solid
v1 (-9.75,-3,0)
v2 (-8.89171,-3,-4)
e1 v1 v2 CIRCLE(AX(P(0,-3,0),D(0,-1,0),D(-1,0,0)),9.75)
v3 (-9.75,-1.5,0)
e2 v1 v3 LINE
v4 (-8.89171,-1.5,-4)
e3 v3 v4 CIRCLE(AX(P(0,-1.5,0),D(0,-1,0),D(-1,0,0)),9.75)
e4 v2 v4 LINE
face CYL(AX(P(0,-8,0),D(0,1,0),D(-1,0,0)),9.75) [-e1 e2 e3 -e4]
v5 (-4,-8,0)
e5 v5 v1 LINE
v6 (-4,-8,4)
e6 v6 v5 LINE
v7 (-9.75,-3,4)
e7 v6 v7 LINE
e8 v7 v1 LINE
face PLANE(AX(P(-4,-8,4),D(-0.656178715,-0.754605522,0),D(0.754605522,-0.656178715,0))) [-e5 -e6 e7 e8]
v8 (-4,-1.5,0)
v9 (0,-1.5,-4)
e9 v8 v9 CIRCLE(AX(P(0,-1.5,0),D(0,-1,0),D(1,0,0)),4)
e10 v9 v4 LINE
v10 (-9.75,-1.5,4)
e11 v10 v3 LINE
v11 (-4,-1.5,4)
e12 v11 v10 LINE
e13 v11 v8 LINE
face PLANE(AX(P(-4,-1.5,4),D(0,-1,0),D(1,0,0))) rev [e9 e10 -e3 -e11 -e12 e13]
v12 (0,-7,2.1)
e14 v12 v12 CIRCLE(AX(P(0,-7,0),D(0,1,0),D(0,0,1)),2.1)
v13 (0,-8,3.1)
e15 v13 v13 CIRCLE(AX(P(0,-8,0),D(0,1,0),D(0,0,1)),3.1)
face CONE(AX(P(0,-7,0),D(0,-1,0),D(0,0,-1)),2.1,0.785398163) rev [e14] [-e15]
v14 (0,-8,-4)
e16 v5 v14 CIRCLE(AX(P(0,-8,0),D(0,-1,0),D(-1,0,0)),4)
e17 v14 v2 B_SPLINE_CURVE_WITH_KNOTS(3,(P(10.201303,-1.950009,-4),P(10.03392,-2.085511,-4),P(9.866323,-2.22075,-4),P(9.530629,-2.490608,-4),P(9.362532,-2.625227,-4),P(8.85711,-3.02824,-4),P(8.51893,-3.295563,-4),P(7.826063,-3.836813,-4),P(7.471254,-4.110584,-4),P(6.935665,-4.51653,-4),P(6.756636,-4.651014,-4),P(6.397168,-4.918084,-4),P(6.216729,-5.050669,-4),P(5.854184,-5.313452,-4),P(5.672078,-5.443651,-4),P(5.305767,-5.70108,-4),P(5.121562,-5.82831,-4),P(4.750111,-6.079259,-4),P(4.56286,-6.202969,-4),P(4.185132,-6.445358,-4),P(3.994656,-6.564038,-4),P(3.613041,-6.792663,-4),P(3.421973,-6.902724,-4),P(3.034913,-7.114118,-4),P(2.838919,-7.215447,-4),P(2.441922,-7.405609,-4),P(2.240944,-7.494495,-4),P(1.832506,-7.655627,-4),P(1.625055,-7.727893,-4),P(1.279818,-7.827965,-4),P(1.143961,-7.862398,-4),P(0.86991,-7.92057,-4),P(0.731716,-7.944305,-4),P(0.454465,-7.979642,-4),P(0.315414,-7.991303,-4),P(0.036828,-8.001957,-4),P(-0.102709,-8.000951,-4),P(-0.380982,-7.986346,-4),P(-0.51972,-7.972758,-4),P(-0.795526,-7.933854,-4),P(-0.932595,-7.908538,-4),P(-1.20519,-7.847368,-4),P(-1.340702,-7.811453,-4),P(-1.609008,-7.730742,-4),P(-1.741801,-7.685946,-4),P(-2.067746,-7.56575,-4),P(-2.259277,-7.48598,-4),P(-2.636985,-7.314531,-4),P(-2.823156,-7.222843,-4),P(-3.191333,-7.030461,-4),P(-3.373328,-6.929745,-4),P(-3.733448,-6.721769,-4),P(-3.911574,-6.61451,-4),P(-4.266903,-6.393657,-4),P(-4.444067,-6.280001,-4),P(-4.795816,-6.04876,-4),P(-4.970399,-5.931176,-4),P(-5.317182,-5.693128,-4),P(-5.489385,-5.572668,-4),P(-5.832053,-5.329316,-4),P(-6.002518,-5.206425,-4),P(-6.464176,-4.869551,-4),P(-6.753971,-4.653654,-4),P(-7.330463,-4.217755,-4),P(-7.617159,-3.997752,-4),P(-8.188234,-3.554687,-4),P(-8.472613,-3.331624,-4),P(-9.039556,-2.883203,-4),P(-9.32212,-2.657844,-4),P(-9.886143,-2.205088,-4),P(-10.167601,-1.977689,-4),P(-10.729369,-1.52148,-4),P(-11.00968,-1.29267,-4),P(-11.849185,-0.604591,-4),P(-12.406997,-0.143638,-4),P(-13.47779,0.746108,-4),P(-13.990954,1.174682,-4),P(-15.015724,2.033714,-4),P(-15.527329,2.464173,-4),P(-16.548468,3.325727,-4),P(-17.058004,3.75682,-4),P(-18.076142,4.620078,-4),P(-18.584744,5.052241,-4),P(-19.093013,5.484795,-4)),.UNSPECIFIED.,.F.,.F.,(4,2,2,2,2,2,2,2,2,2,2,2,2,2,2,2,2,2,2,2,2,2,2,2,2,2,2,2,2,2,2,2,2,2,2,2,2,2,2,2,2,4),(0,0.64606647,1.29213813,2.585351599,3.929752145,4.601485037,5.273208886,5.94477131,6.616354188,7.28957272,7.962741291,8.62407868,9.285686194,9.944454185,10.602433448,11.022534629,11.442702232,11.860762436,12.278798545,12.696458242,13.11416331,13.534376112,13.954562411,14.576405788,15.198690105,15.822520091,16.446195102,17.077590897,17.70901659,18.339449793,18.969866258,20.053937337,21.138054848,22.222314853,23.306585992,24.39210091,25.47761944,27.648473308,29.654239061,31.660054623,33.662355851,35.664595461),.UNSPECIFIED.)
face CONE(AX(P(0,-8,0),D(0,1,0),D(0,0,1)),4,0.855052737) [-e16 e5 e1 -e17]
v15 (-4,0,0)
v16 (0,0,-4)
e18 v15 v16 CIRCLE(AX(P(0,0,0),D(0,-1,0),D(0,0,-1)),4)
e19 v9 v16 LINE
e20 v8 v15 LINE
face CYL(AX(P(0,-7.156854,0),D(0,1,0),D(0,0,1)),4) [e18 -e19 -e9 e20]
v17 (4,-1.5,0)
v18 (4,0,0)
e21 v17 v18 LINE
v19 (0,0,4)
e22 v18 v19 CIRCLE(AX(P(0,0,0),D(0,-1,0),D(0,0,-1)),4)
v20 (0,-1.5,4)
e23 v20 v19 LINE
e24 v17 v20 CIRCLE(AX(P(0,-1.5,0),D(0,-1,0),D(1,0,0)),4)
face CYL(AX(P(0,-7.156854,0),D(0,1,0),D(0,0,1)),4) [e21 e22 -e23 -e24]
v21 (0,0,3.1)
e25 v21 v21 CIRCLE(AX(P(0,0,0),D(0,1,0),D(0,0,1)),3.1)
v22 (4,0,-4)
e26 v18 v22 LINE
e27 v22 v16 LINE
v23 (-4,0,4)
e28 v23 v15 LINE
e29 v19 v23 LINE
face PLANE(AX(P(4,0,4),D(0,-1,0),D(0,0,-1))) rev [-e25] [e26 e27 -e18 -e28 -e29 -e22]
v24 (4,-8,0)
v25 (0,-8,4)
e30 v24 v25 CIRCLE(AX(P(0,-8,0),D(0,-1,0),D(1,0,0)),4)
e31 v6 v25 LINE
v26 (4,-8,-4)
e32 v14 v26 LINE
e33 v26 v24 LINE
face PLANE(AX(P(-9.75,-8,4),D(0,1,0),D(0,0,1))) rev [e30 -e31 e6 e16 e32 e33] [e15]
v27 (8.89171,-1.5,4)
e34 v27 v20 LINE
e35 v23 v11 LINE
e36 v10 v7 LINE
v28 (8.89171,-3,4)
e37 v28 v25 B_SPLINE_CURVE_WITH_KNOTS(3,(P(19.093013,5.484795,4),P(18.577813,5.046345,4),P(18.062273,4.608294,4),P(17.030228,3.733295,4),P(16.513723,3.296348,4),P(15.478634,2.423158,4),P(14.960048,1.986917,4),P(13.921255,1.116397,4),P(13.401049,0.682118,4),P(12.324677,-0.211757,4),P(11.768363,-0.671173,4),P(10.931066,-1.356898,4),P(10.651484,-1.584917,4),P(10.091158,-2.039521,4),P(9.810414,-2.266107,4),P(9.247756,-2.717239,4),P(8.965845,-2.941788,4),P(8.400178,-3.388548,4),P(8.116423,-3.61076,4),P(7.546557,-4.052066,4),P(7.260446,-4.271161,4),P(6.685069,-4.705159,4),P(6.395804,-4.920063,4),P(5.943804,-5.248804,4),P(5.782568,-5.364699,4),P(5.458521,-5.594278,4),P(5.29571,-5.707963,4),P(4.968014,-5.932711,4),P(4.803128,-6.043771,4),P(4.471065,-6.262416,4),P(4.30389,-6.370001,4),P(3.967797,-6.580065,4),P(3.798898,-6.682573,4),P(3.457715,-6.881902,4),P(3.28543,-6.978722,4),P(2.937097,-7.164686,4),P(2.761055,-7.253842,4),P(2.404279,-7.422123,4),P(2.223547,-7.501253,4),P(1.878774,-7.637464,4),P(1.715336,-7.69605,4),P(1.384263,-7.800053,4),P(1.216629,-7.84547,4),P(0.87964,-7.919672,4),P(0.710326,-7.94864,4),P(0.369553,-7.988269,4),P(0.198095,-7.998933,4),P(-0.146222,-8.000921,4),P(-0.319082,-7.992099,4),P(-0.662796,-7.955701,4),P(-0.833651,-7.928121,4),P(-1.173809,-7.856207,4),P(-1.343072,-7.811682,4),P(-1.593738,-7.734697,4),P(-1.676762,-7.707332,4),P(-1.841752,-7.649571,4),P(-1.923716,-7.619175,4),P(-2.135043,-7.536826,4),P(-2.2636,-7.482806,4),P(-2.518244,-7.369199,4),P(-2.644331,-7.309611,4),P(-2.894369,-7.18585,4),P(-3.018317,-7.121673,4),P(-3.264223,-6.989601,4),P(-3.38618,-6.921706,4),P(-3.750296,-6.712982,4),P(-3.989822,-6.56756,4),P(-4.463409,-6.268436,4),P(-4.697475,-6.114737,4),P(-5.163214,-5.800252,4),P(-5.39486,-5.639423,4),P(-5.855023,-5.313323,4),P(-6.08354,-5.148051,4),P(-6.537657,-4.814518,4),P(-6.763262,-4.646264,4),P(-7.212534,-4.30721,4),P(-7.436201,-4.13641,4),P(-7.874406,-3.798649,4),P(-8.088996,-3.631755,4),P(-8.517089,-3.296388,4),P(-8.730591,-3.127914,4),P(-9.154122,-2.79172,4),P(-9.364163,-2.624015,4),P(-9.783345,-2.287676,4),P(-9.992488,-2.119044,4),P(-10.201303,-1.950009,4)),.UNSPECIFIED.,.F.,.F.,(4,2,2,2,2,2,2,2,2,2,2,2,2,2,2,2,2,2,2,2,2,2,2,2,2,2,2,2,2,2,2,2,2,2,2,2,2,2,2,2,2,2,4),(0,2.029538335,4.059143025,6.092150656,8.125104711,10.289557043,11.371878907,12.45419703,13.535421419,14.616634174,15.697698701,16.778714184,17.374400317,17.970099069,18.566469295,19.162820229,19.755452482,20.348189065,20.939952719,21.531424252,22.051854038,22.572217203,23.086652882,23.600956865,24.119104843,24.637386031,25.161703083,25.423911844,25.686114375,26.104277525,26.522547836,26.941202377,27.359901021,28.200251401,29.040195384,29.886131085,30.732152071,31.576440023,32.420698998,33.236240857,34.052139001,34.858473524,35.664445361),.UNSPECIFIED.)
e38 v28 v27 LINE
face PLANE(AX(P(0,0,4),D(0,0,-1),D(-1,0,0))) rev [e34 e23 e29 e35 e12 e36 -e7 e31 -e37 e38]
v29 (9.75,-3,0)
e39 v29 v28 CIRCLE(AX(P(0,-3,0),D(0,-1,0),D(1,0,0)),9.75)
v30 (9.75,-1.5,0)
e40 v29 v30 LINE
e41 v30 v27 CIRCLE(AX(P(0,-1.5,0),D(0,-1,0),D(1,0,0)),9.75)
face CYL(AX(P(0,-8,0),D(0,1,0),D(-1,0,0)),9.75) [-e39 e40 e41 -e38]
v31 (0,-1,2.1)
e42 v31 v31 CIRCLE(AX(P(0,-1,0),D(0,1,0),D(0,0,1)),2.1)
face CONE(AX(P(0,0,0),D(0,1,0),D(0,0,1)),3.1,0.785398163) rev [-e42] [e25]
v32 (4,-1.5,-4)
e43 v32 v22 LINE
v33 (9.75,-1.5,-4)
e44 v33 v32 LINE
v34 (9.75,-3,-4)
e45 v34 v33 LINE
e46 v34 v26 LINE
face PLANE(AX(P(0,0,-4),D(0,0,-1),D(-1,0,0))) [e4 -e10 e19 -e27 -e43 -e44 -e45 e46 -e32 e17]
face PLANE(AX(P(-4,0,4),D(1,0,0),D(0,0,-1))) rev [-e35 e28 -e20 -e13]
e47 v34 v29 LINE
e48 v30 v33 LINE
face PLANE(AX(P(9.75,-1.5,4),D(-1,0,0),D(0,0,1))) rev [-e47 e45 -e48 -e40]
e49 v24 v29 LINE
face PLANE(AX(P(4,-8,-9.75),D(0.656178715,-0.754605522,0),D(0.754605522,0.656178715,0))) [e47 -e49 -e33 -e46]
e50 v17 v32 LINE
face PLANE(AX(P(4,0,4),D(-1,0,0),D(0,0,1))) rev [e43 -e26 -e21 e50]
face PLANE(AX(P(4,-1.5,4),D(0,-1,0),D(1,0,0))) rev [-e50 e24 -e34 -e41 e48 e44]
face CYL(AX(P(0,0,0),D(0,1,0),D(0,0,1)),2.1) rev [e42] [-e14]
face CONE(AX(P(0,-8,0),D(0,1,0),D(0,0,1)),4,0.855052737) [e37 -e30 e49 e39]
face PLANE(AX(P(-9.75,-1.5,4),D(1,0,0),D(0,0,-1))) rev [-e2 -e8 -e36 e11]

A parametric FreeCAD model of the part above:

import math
import FreeCAD as App
import Part
import Sketcher
from FreeCAD import Vector


def add_polygon(sketch, points):
    """Adds a closed chain of lines whose ends are joined by coincident constraints."""
    first, n = sketch.GeometryCount, len(points)
    for a, b in zip(points, points[1:] + points[:1]):
        sketch.addGeometry(Part.LineSegment(App.Vector(*a, 0), App.Vector(*b, 0)), False)
    for i in range(n):
        sketch.addConstraint(Sketcher.Constraint("Coincident", first + i, 2, first + (i + 1) % n, 1))

doc = App.newDocument("Part")
params = doc.addObject("Spreadsheet::Sheet", "Params")
for row, (alias, value) in enumerate([
    ("sketch1_width", "8 mm"),
    ("sketch1_width2", "19.5 mm"),
    ("sketch1_height", "1.5 mm"),
    ("sketch1_height2", "6.5 mm"),
    ("pad1_length", "8 mm"),
    ("sketch2_width", "8 mm"),
    ("sketch2_width2", "6 mm"),
    ("sketch2_height", "3.1 mm"),
    ("groove_angle", "360 deg"),
    ("sketch3_radius", "4 mm"),
    ("pocket1_length", "1.5 mm"),
    ("sketch4_height", "4 mm"),
    ("sketch4_radius", "9.75 mm"),
    ("sketch5_height", "5 mm"),
    ("sketch5_width", "5.75 mm"),
    ("sketch6_radius", "9.75 mm"),
], start=1):
    params.set(f"A{row}", alias)
    params.set(f"B{row}", "=" + value)
    params.setAlias(f"B{row}", alias)

body = doc.addObject("PartDesign::Body", "Body")

# Sketch on XY plane
sketch1 = body.newObject("Sketcher::SketchObject", "Sketch")
sketch1.AttachmentSupport = (doc.getObject("XY_Plane"), [""])
sketch1.MapMode = "FlatFace"
add_polygon(sketch1, [(4, 0), (-4, 0), (-4, -1.5), (-9.8, -1.5), (-9.8, -8), (9.8, -8), (9.8, -1.5), (4, -1.5)])  # lines 0-7
sketch1.addConstraint([
    Sketcher.Constraint("Horizontal", 0),
    Sketcher.Constraint("Vertical", 1),
    Sketcher.Constraint("Horizontal", 2),
    Sketcher.Constraint("Vertical", 3),
    Sketcher.Constraint("Horizontal", 4),
    Sketcher.Constraint("Vertical", 5),
    Sketcher.Constraint("Horizontal", 6),
    Sketcher.Constraint("Vertical", 7),
    Sketcher.Constraint("Symmetric", 0, 2, 7, 2, -1, 1),
    Sketcher.Constraint("Symmetric", 2, 2, 5, 2, -2),
    Sketcher.Constraint("DistanceX", 0, 2, 0, 1, 8.0),
    Sketcher.Constraint("DistanceX", 4, 1, 4, 2, 19.5),
    Sketcher.Constraint("DistanceY", 1, 2, 1, 1, 1.5),
    Sketcher.Constraint("DistanceY", 3, 2, 3, 1, 6.5),
])
sketch1.setExpression("Constraints[18]", "Params.sketch1_width")
sketch1.setExpression("Constraints[19]", "Params.sketch1_width2")
sketch1.setExpression("Constraints[20]", "Params.sketch1_height")
sketch1.setExpression("Constraints[21]", "Params.sketch1_height2")
pad1 = body.newObject("PartDesign::Pad", "Pad")
pad1.Profile = sketch1
pad1.setExpression("Length", "Params.pad1_length")
pad1.Midplane = True

# Sketch on YZ plane
sketch2 = body.newObject("Sketcher::SketchObject", "Sketch001")
sketch2.AttachmentSupport = (doc.getObject("YZ_Plane"), [""])
sketch2.MapMode = "FlatFace"
add_polygon(sketch2, [(-8, 0), (0, 0), (0, 3.1), (-1, 2.1), (-7, 2.1), (-8, 3.1)])  # lines 0-5
sketch2.addConstraint([
    Sketcher.Constraint("Horizontal", 0),
    Sketcher.Constraint("Vertical", 1),
    Sketcher.Constraint("Horizontal", 3),
    Sketcher.Constraint("Vertical", 5),
    Sketcher.Constraint("Coincident", 0, 2, -1, 1),
    Sketcher.Constraint("Perpendicular", 2, 4),
    Sketcher.Constraint("Horizontal", 1, 2, 4, 2),
    Sketcher.Constraint("Equal", 2, 4),
    Sketcher.Constraint("DistanceX", 0, 1, 0, 2, 8.0),
    Sketcher.Constraint("DistanceX", 3, 2, 3, 1, 6.0),
    Sketcher.Constraint("DistanceY", 1, 1, 1, 2, 3.1),
])
sketch2.setExpression("Constraints[14]", "Params.sketch2_width")
sketch2.setExpression("Constraints[15]", "Params.sketch2_width2")
sketch2.setExpression("Constraints[16]", "Params.sketch2_height")
groove = body.newObject("PartDesign::Groove", "Groove")
groove.Profile = sketch2
groove.ReferenceAxis = (sketch2, ["H_Axis"])
groove.setExpression("Angle", "Params.groove_angle")

# Sketch on XZ plane
sketch3 = body.newObject("Sketcher::SketchObject", "Sketch002")
sketch3.AttachmentSupport = (doc.getObject("XZ_Plane"), [""])
sketch3.MapMode = "FlatFace"
sketch3.addGeometry([
    Part.LineSegment(Vector(-4, -4, 0), Vector(-4, 0, 0)),  # 0
    Part.ArcOfCircle(Part.Circle(Vector(0, 0, 0), Vector(0, 0, 1), 4), math.radians(180), math.radians(270)),  # 1
    Part.LineSegment(Vector(0, -4, 0), Vector(-4, -4, 0)),  # 2
    Part.LineSegment(Vector(0, 4, 0), Vector(4, 4, 0)),  # 3
    Part.LineSegment(Vector(4, 4, 0), Vector(4, 0, 0)),  # 4
    Part.ArcOfCircle(Part.Circle(Vector(0, 0, 0), Vector(0, 0, 1), 4), math.radians(0), math.radians(90)),  # 5
], False)
sketch3.addConstraint([
    Sketcher.Constraint("Tangent", 0, 2, 1, 1),
    Sketcher.Constraint("Tangent", 1, 2, 2, 1),
    Sketcher.Constraint("Coincident", 2, 2, 0, 1),
    Sketcher.Constraint("Coincident", 3, 2, 4, 1),
    Sketcher.Constraint("Tangent", 4, 2, 5, 1),
    Sketcher.Constraint("Tangent", 5, 2, 3, 1),
    Sketcher.Constraint("Vertical", 0),
    Sketcher.Constraint("Horizontal", 2),
    Sketcher.Constraint("Horizontal", 3),
    Sketcher.Constraint("Vertical", 4),
    Sketcher.Constraint("Coincident", 1, 3, -1, 1),
    Sketcher.Constraint("Coincident", 5, 3, -1, 1),
    Sketcher.Constraint("Equal", 1, 5),
    Sketcher.Constraint("Radius", 1, 4.0),
])
sketch3.setExpression("Constraints[13]", "Params.sketch3_radius")
pocket1 = body.newObject("PartDesign::Pocket", "Pocket")
pocket1.Profile = sketch3
pocket1.setExpression("Length", "Params.pocket1_length")
pocket1.Reversed = True

# Sketch on XZ plane
sketch4 = body.newObject("Sketcher::SketchObject", "Sketch003")
sketch4.AttachmentSupport = (doc.getObject("XZ_Plane"), [""])
sketch4.MapMode = "FlatFace"
sketch4.AttachmentOffset = App.Placement(Vector(0, 0, 1.5), App.Rotation())
sketch4.addGeometry([
    Part.LineSegment(Vector(-9.8, -4, 0), Vector(-9.8, 0, 0)),  # 0
    Part.ArcOfCircle(Part.Circle(Vector(0, 0, 0), Vector(0, 0, 1), 9.8), math.radians(-180), math.radians(-156)),  # 1
    Part.LineSegment(Vector(-8.9, -4, 0), Vector(-9.8, -4, 0)),  # 2
    Part.LineSegment(Vector(9.8, 4, 0), Vector(9.8, 0, 0)),  # 3
    Part.ArcOfCircle(Part.Circle(Vector(0, 0, 0), Vector(0, 0, 1), 9.8), math.radians(0), math.radians(24)),  # 4
    Part.LineSegment(Vector(8.9, 4, 0), Vector(9.8, 4, 0)),  # 5
], False)
sketch4.addConstraint([
    Sketcher.Constraint("Tangent", 0, 2, 1, 1),
    Sketcher.Constraint("Coincident", 1, 2, 2, 1),
    Sketcher.Constraint("Coincident", 2, 2, 0, 1),
    Sketcher.Constraint("Tangent", 3, 2, 4, 1),
    Sketcher.Constraint("Coincident", 4, 2, 5, 1),
    Sketcher.Constraint("Coincident", 5, 2, 3, 1),
    Sketcher.Constraint("Vertical", 0),
    Sketcher.Constraint("Horizontal", 2),
    Sketcher.Constraint("Vertical", 3),
    Sketcher.Constraint("Horizontal", 5),
    Sketcher.Constraint("Coincident", 1, 3, -1, 1),
    Sketcher.Constraint("Coincident", 4, 3, -1, 1),
    Sketcher.Constraint("Equal", 1, 4),
    Sketcher.Constraint("Equal", 2, 5),
    Sketcher.Constraint("DistanceY", 0, 1, 0, 2, 4.0),
    Sketcher.Constraint("Radius", 1, 9.75),
])
sketch4.setExpression("Constraints[14]", "Params.sketch4_height")
sketch4.setExpression("Constraints[15]", "Params.sketch4_radius")
pocket2 = body.newObject("PartDesign::Pocket", "Pocket001")
pocket2.Profile = sketch4
pocket2.Type = "ThroughAll"
pocket2.Reversed = True

# Sketch on XY plane
sketch5 = body.newObject("Sketcher::SketchObject", "Sketch004")
sketch5.AttachmentSupport = (doc.getObject("XY_Plane"), [""])
sketch5.MapMode = "FlatFace"
sketch5.AttachmentOffset = App.Placement(Vector(0, 0, 4), App.Rotation())
add_polygon(sketch5, [(-10, -3), (-10, -8), (-4, -8)])  # lines 0-2
sketch5.addConstraint([
    Sketcher.Constraint("Vertical", 0),
    Sketcher.Constraint("Horizontal", 1),
    Sketcher.Constraint("DistanceY", 0, 2, 0, 1, 5.0),
    Sketcher.Constraint("DistanceY", 0, 2, -1, 1, 8.0),
    Sketcher.Constraint("DistanceX", 1, 2, -1, 1, 4.0),
    Sketcher.Constraint("DistanceX", 1, 1, 1, 2, 5.75),
])
sketch5.setExpression("Constraints[5]", "Params.sketch5_height")
sketch5.setExpression("Constraints[8]", "Params.sketch5_width")

# Sketch on XZ plane
sketch6 = body.newObject("Sketcher::SketchObject", "Sketch005")
sketch6.AttachmentSupport = (doc.getObject("XZ_Plane"), [""])
sketch6.MapMode = "FlatFace"
sketch6.AttachmentOffset = App.Placement(Vector(0, 0, 8), App.Rotation())
sketch6.addGeometry([
    Part.LineSegment(Vector(0, 10, 0), Vector(-10, 10, 0)),  # 0
    Part.LineSegment(Vector(-10, 10, 0), Vector(-10, 0, 0)),  # 1
    Part.ArcOfCircle(Part.Circle(Vector(0, 0, 0), Vector(0, 0, 1), 10), math.radians(180), math.radians(270)),  # 2
    Part.LineSegment(Vector(0, -10, 0), Vector(10, -10, 0)),  # 3
    Part.LineSegment(Vector(10, -10, 0), Vector(10, 0, 0)),  # 4
    Part.ArcOfCircle(Part.Circle(Vector(0, 0, 0), Vector(0, 0, 1), 10), math.radians(0), math.radians(90)),  # 5
], False)
sketch6.addConstraint([
    Sketcher.Constraint("Coincident", 0, 2, 1, 1),
    Sketcher.Constraint("Tangent", 1, 2, 2, 1),
    Sketcher.Constraint("Tangent", 2, 2, 3, 1),
    Sketcher.Constraint("Coincident", 3, 2, 4, 1),
    Sketcher.Constraint("Tangent", 4, 2, 5, 1),
    Sketcher.Constraint("Tangent", 5, 2, 0, 1),
    Sketcher.Constraint("Horizontal", 0),
    Sketcher.Constraint("Vertical", 1),
    Sketcher.Constraint("Horizontal", 3),
    Sketcher.Constraint("Vertical", 4),
    Sketcher.Constraint("Coincident", 2, 3, -1, 1),
    Sketcher.Constraint("Coincident", 5, 3, -1, 1),
    Sketcher.Constraint("Equal", 2, 5),
    Sketcher.Constraint("Radius", 2, 9.75),
])
sketch6.setExpression("Constraints[13]", "Params.sketch6_radius")
doc.recompute()

subtractivepipe = body.newObject("PartDesign::SubtractivePipe", "SubtractivePipe")
subtractivepipe.Profile = sketch5
subtractivepipe.Spine = (sketch6, ["Edge1", "Edge2", "Edge3", "Edge4", "Edge5", "Edge6"])
subtractivepipe.Transition = "Right corner"

doc.recompute()
